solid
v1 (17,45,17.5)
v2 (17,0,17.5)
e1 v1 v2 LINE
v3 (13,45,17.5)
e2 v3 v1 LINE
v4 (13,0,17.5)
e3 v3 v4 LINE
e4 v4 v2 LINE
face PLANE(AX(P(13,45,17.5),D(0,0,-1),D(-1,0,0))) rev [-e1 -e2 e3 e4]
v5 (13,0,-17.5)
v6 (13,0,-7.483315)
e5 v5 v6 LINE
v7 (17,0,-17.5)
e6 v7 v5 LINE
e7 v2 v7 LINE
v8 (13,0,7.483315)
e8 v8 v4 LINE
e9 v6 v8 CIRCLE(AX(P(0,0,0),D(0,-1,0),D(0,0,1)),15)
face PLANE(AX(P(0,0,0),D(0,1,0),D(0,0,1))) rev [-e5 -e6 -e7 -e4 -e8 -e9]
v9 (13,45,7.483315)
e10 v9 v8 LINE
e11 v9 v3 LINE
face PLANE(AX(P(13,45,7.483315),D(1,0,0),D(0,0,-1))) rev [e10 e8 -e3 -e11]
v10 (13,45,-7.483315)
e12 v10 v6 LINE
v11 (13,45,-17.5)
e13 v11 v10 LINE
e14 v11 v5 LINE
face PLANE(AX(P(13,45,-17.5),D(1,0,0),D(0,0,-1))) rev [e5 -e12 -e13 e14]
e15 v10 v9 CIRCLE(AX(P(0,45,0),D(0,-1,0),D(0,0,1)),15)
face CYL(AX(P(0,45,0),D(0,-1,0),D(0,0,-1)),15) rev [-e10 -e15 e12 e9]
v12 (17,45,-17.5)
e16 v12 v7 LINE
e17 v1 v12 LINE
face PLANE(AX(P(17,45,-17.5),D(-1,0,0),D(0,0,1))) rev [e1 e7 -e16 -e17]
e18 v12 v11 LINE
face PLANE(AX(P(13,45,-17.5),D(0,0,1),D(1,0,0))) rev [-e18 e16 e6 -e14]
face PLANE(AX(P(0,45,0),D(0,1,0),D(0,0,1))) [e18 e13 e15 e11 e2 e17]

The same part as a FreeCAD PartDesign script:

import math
import FreeCAD as App
import Part
import Sketcher

V = App.Vector

doc = App.newDocument("Part")
body = doc.addObject("PartDesign::Body", "Body")

# Sketch on XZ plane
sketch1 = body.newObject("Sketcher::SketchObject", "Sketch")
sketch1.AttachmentSupport = (doc.getObject("XZ_Plane"), [""])
sketch1.MapMode = "FlatFace"
sketch1.addGeometry([
    Part.LineSegment(V(13, -17.5, 0), V(13, -7.5, 0)),  # 0
    Part.ArcOfCircle(Part.Circle(V(0, 0, 0), V(0, 0, 1), 15), math.radians(-30), math.radians(30)),  # 1
    Part.LineSegment(V(13, 7.5, 0), V(13, 17.5, 0)),  # 2
    Part.LineSegment(V(13, 17.5, 0), V(17, 17.5, 0)),  # 3
    Part.LineSegment(V(17, 17.5, 0), V(17, -17.5, 0)),  # 4
    Part.LineSegment(V(17, -17.5, 0), V(13, -17.5, 0)),  # 5
], False)
sketch1.addConstraint([
    Sketcher.Constraint("Coincident", 0, 2, 1, 1),
    Sketcher.Constraint("Coincident", 1, 2, 2, 1),
    Sketcher.Constraint("Coincident", 2, 2, 3, 1),
    Sketcher.Constraint("Coincident", 3, 2, 4, 1),
    Sketcher.Constraint("Coincident", 4, 2, 5, 1),
    Sketcher.Constraint("Coincident", 5, 2, 0, 1),
    Sketcher.Constraint("Vertical", 0),
    Sketcher.Constraint("Vertical", 2),
    Sketcher.Constraint("Horizontal", 3),
    Sketcher.Constraint("Vertical", 4),
    Sketcher.Constraint("Horizontal", 5),
    Sketcher.Constraint("Coincident", 1, 3, -1, 1),
    Sketcher.Constraint("Symmetric", 2, 2, 5, 2, -1),
    Sketcher.Constraint("Radius", 1, 15.0),
    Sketcher.Constraint("DistanceX", 3, 1, 3, 2, 4.0),
    Sketcher.Constraint("DistanceY", 4, 2, 4, 1, 35.0),
    Sketcher.Constraint("DistanceX", -1, 1, 0, 2, 13.0),
])
pad1 = body.newObject("PartDesign::Pad", "Pad")
pad1.Profile = sketch1
pad1.Length = 45
pad1.Reversed = True

doc.recompute()
